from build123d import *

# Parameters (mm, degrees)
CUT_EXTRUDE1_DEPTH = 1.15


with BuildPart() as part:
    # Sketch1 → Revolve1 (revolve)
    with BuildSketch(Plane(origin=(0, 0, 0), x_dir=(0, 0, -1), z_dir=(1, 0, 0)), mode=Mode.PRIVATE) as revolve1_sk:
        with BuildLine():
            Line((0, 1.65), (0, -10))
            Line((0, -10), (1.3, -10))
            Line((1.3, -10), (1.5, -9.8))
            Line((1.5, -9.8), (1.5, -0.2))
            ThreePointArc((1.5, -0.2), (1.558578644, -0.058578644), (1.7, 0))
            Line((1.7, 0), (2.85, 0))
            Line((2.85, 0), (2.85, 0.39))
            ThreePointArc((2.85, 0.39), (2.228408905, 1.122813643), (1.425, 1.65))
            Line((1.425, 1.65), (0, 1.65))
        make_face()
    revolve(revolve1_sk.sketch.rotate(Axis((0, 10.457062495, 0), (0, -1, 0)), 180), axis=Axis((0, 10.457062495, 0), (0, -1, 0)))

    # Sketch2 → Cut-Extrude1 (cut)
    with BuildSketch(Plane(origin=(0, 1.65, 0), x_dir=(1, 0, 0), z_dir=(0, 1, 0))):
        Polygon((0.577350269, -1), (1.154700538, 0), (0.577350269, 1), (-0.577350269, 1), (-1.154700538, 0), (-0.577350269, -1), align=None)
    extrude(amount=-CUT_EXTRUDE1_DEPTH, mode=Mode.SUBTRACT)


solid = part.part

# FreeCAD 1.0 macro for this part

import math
import FreeCAD as App
import Part
import Sketcher

V = App.Vector
Q = App.Units.Quantity


def add_polygon(sketch, points):
    """Adds a closed chain of lines whose ends are joined by coincident constraints."""
    first, n = sketch.GeometryCount, len(points)
    for a, b in zip(points, points[1:] + points[:1]):
        sketch.addGeometry(Part.LineSegment(App.Vector(*a, 0), App.Vector(*b, 0)), False)
    for i in range(n):
        sketch.addConstraint(Sketcher.Constraint("Coincident", first + i, 2, first + (i + 1) % n, 1))

doc = App.newDocument("Part")
body = doc.addObject("PartDesign::Body", "Body")

sketch1 = body.newObject("Sketcher::SketchObject", "Sketch")
sketch1.AttachmentSupport = (doc.getObject("YZ_Plane"), [""])
sketch1.MapMode = "FlatFace"
sketch1.addGeometry(Part.LineSegment(V(1.65, 0, 0), V(-10, 0, 0)), False)
sketch1.addGeometry(Part.LineSegment(V(-10, 0, 0), V(-10, -1.3, 0)), False)
sketch1.addGeometry(Part.LineSegment(V(-10, -1.3, 0), V(-9.8, -1.5, 0)), False)
sketch1.addGeometry(Part.LineSegment(V(-9.8, -1.5, 0), V(-0.2, -1.5, 0)), False)
sketch1.addGeometry(Part.ArcOfCircle(Part.Circle(V(-0.2, -1.7, 0), V(0, 0, 1), 0.2), math.radians(0), math.radians(90)), False)
sketch1.addGeometry(Part.LineSegment(V(0, -1.7, 0), V(0, -2.85, 0)), False)
sketch1.addGeometry(Part.LineSegment(V(0, -2.85, 0), V(0.39, -2.85, 0)), False)
sketch1.addGeometry(Part.ArcOfCircle(Part.Circle(V(-1.4, 0, 0), V(0, 0, 1), 3.36), math.radians(-58), math.radians(-25)), False)
sketch1.addGeometry(Part.LineSegment(V(1.65, -1.43, 0), V(1.65, 0, 0)), False)
sketch1.addConstraint(Sketcher.Constraint("Coincident", 0, 2, 1, 1))
sketch1.addConstraint(Sketcher.Constraint("Coincident", 1, 2, 2, 1))
sketch1.addConstraint(Sketcher.Constraint("Coincident", 2, 2, 3, 1))
sketch1.addConstraint(Sketcher.Constraint("Tangent", 3, 2, 4, 2))
sketch1.addConstraint(Sketcher.Constraint("Tangent", 4, 1, 5, 1))
sketch1.addConstraint(Sketcher.Constraint("Coincident", 5, 2, 6, 1))
sketch1.addConstraint(Sketcher.Constraint("Coincident", 6, 2, 7, 1))
sketch1.addConstraint(Sketcher.Constraint("Coincident", 7, 2, 8, 1))
sketch1.addConstraint(Sketcher.Constraint("Coincident", 8, 2, 0, 1))
sketch1.addConstraint(Sketcher.Constraint("Horizontal", 0))
sketch1.addConstraint(Sketcher.Constraint("Vertical", 1))
sketch1.addConstraint(Sketcher.Constraint("Horizontal", 3))
sketch1.addConstraint(Sketcher.Constraint("Vertical", 5))
sketch1.addConstraint(Sketcher.Constraint("Horizontal", 6))
sketch1.addConstraint(Sketcher.Constraint("Vertical", 8))
sketch1.addConstraint(Sketcher.Constraint("PointOnObject", 7, 3, -1))
sketch1.addConstraint(Sketcher.Constraint("PointOnObject", 0, 2, -1))
sketch1.addConstraint(Sketcher.Constraint("PointOnObject", 4, 1, -2))
sketch1.addConstraint(Sketcher.Constraint("Radius", 4, 0.2))
sketch1.addConstraint(Sketcher.Constraint("Angle", 2, Q("-45 deg")))
sketch1.addConstraint(Sketcher.Constraint("DistanceX", 3, 1, 3, 2, 9.6))
sketch1.addConstraint(Sketcher.Constraint("DistanceY", 1, 2, 1, 1, 1.3))
sketch1.addConstraint(Sketcher.Constraint("DistanceX", 0, 2, -1, 1, 10.0))
sketch1.addConstraint(Sketcher.Constraint("DistanceX", 0, 2, 0, 1, 11.65))
sketch1.addConstraint(Sketcher.Constraint("DistanceX", 6, 1, 6, 2, 0.39))
sketch1.addConstraint(Sketcher.Constraint("DistanceY", 5, 2, 5, 1, 1.15))
sketch1.addConstraint(Sketcher.Constraint("DistanceY", 8, 1, 8, 2, 1.425))
revolution = body.newObject("PartDesign::Revolution", "Revolution")
revolution.Profile = sketch1
revolution.ReferenceAxis = (sketch1, ["H_Axis"])
revolution.Angle = 360

sketch2 = body.newObject("Sketcher::SketchObject", "Sketch001")
sketch2.AttachmentSupport = (doc.getObject("XZ_Plane"), [""])
sketch2.MapMode = "FlatFace"
sketch2.AttachmentOffset = App.Placement(V(0, 0, -1.65), App.Rotation())
add_polygon(sketch2, [(0.6, 1), (1.2, 0), (0.6, -1), (-0.6, -1), (-1.2, 0), (-0.6, 1)])
sketch2.addConstraint(Sketcher.Constraint("Horizontal", 2))
sketch2.addConstraint(Sketcher.Constraint("Horizontal", 5))
sketch2.addConstraint(Sketcher.Constraint("Symmetric", 0, 2, 3, 2, -1, 1))
sketch2.addConstraint(Sketcher.Constraint("Symmetric", 1, 2, 4, 2, -1, 1))
sketch2.addConstraint(Sketcher.Constraint("PointOnObject", 0, 2, -1))
sketch2.addConstraint(Sketcher.Constraint("Parallel", 0, 3))
sketch2.addConstraint(Sketcher.Constraint("Vertical", 2, 2, 4, 2))
sketch2.addConstraint(Sketcher.Constraint("Angle", 0, Q("-60 deg")))
sketch2.addConstraint(Sketcher.Constraint("DistanceY", 1, 2, -1, 1, 1.0))
sketch2.addConstraint(Sketcher.Constraint("DistanceX", 2, 2, 2, 1, 1.154701))
pocket1 = body.newObject("PartDesign::Pocket", "Pocket")
pocket1.Profile = sketch2
pocket1.Length = 1.15
pocket1.Reversed = True

doc.recompute()
